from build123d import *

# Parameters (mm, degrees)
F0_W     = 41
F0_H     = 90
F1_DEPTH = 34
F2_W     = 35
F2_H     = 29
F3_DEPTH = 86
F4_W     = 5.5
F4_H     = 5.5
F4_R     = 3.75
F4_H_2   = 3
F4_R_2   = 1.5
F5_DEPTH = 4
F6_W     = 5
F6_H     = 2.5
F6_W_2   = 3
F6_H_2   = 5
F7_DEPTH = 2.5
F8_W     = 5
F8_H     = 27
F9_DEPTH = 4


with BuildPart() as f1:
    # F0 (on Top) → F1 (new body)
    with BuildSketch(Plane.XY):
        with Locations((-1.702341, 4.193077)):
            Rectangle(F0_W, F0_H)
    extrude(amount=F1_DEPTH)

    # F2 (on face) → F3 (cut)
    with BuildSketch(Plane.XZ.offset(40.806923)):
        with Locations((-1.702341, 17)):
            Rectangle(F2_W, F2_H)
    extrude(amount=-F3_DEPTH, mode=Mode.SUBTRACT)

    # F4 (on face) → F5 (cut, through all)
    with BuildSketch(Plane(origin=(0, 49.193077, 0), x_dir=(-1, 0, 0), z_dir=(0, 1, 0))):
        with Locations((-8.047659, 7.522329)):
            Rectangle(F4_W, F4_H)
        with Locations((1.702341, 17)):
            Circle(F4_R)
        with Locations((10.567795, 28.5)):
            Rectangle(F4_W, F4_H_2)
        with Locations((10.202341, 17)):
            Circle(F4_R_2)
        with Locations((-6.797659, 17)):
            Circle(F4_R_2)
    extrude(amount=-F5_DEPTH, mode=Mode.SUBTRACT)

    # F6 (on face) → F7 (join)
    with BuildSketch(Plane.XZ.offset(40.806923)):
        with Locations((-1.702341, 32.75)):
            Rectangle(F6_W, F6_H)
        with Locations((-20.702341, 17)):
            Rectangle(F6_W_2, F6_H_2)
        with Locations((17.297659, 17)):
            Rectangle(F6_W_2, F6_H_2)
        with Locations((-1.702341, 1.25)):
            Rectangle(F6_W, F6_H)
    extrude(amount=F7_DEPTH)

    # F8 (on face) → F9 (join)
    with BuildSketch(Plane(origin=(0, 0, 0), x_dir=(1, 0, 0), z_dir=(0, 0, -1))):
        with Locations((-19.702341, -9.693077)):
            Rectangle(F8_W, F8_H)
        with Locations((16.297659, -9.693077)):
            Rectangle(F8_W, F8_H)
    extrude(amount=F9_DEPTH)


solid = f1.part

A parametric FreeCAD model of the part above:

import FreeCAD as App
import Part
import Sketcher
from FreeCAD import Vector

doc = App.newDocument("Part")
params = doc.addObject("Spreadsheet::Sheet", "Params")
for row, (alias, value) in enumerate([
    ("sketch1_width", "41 mm"),
    ("sketch1_height", "90 mm"),
    ("pad1_length", "34 mm"),
    ("sketch2_width", "35 mm"),
    ("sketch2_height", "29 mm"),
    ("pocket1_length", "86 mm"),
    ("sketch3_diameter", "3 mm"),
    ("sketch3_diameter2", "7.5 mm"),
    ("sketch3_height", "3 mm"),
    ("sketch3_width", "5.5 mm"),
    ("sketch4_width", "5 mm"),
    ("sketch4_width2", "3 mm"),
    ("sketch4_height", "2.5 mm"),
    ("pad2_length", "2.5 mm"),
    ("sketch5_width", "5 mm"),
    ("sketch5_height", "27 mm"),
    ("pad3_length", "4 mm"),
], start=1):
    params.set(f"A{row}", alias)
    params.set(f"B{row}", "=" + value)
    params.setAlias(f"B{row}", alias)

body = doc.addObject("PartDesign::Body", "Body")

# Sketch on XY plane
sketch1 = body.newObject("Sketcher::SketchObject", "Sketch")
sketch1.AttachmentSupport = (doc.getObject("XY_Plane"), [""])
sketch1.MapMode = "FlatFace"
sketch1.addGeometry([
    Part.LineSegment(Vector(-22, 49, 0), Vector(-22, -41, 0)),
    Part.LineSegment(Vector(-22, -41, 0), Vector(19, -41, 0)),
    Part.LineSegment(Vector(19, -41, 0), Vector(19, 49, 0)),
    Part.LineSegment(Vector(19, 49, 0), Vector(-22, 49, 0)),
], False)
sketch1.addConstraint([
    Sketcher.Constraint("Coincident", 0, 2, 1, 1),
    Sketcher.Constraint("Coincident", 1, 2, 2, 1),
    Sketcher.Constraint("Coincident", 2, 2, 3, 1),
    Sketcher.Constraint("Coincident", 3, 2, 0, 1),
    Sketcher.Constraint("Vertical", 0),
    Sketcher.Constraint("Horizontal", 1),
    Sketcher.Constraint("Vertical", 2),
    Sketcher.Constraint("Horizontal", 3),
    Sketcher.Constraint("DistanceX", 1, 1, 1, 2, 41.0),
    Sketcher.Constraint("DistanceY", 0, 2, 0, 1, 90.0),
    Sketcher.Constraint("DistanceX", 0, 2, -1, 1, 22.202341),
    Sketcher.Constraint("DistanceY", 0, 2, -1, 1, 40.806923),
])
sketch1.setExpression("Constraints[8]", "Params.sketch1_width")
sketch1.setExpression("Constraints[9]", "Params.sketch1_height")
pad1 = body.newObject("PartDesign::Pad", "Pad")
pad1.Profile = sketch1
pad1.setExpression("Length", "Params.pad1_length")

# Sketch on XZ plane
sketch2 = body.newObject("Sketcher::SketchObject", "Sketch001")
sketch2.AttachmentSupport = (doc.getObject("XZ_Plane"), [""])
sketch2.MapMode = "FlatFace"
sketch2.AttachmentOffset = App.Placement(Vector(0, 0, 40.806923), App.Rotation())
sketch2.addGeometry([
    Part.LineSegment(Vector(-19, 32, 0), Vector(-19, 2, 0)),
    Part.LineSegment(Vector(-19, 2, 0), Vector(16, 2, 0)),
    Part.LineSegment(Vector(16, 2, 0), Vector(16, 32, 0)),
    Part.LineSegment(Vector(16, 32, 0), Vector(-19, 32, 0)),
], False)
sketch2.addConstraint([
    Sketcher.Constraint("Coincident", 0, 2, 1, 1),
    Sketcher.Constraint("Coincident", 1, 2, 2, 1),
    Sketcher.Constraint("Coincident", 2, 2, 3, 1),
    Sketcher.Constraint("Coincident", 3, 2, 0, 1),
    Sketcher.Constraint("Vertical", 0),
    Sketcher.Constraint("Horizontal", 1),
    Sketcher.Constraint("Vertical", 2),
    Sketcher.Constraint("Horizontal", 3),
    Sketcher.Constraint("DistanceX", 1, 1, 1, 2, 35.0),
    Sketcher.Constraint("DistanceY", 0, 2, 0, 1, 29.0),
    Sketcher.Constraint("DistanceY", -1, 1, 0, 2, 2.5),
    Sketcher.Constraint("DistanceX", 0, 2, -1, 1, 19.202341),
])
sketch2.setExpression("Constraints[8]", "Params.sketch2_width")
sketch2.setExpression("Constraints[9]", "Params.sketch2_height")
pocket1 = body.newObject("PartDesign::Pocket", "Pocket")
pocket1.Profile = sketch2
pocket1.setExpression("Length", "Params.pocket1_length")

# Sketch on XZ plane
sketch3 = body.newObject("Sketcher::SketchObject", "Sketch002")
sketch3.AttachmentSupport = (doc.getObject("XZ_Plane"), [""])
sketch3.MapMode = "FlatFace"
sketch3.AttachmentOffset = App.Placement(Vector(0, 0, -49.193077), App.Rotation())
sketch3.addGeometry([
    Part.LineSegment(Vector(10.8, 10.3, 0), Vector(10.8, 4.8, 0)),  # 0
    Part.LineSegment(Vector(10.8, 4.8, 0), Vector(5.3, 4.8, 0)),  # 1
    Part.LineSegment(Vector(5.3, 4.8, 0), Vector(5.3, 10.3, 0)),  # 2
    Part.LineSegment(Vector(5.3, 10.3, 0), Vector(10.8, 10.3, 0)),  # 3
    Part.Circle(Vector(-1.7, 17, 0), Vector(0, 0, 1), 3.8),  # 4
    Part.LineSegment(Vector(-7.8, 30, 0), Vector(-7.8, 27, 0)),  # 5
    Part.LineSegment(Vector(-7.8, 27, 0), Vector(-13.3, 27, 0)),  # 6
    Part.LineSegment(Vector(-13.3, 27, 0), Vector(-13.3, 30, 0)),  # 7
    Part.LineSegment(Vector(-13.3, 30, 0), Vector(-7.8, 30, 0)),  # 8
    Part.Circle(Vector(-10.2, 17, 0), Vector(0, 0, 1), 1.5),  # 9
    Part.Circle(Vector(6.8, 17, 0), Vector(0, 0, 1), 1.5),  # 10
], False)
sketch3.addConstraint([
    Sketcher.Constraint("Coincident", 0, 2, 1, 1),
    Sketcher.Constraint("Coincident", 1, 2, 2, 1),
    Sketcher.Constraint("Coincident", 2, 2, 3, 1),
    Sketcher.Constraint("Coincident", 3, 2, 0, 1),
    Sketcher.Constraint("Coincident", 5, 2, 6, 1),
    Sketcher.Constraint("Coincident", 6, 2, 7, 1),
    Sketcher.Constraint("Coincident", 7, 2, 8, 1),
    Sketcher.Constraint("Coincident", 8, 2, 5, 1),
    Sketcher.Constraint("Vertical", 0),
    Sketcher.Constraint("Horizontal", 1),
    Sketcher.Constraint("Vertical", 2),
    Sketcher.Constraint("Horizontal", 3),
    Sketcher.Constraint("Vertical", 5),
    Sketcher.Constraint("Horizontal", 6),
    Sketcher.Constraint("Vertical", 7),
    Sketcher.Constraint("Horizontal", 8),
    Sketcher.Constraint("Equal", 9, 10),
    Sketcher.Constraint("Horizontal", 4, 3, 9, 3),
    Sketcher.Constraint("Horizontal", 9, 3, 10, 3),
    Sketcher.Constraint("Equal", 3, 6),
    Sketcher.Constraint("Equal", 8, 0),
    Sketcher.Constraint("Diameter", 9, 3.0),
    Sketcher.Constraint("Diameter", 4, 7.5),
    Sketcher.Constraint("DistanceY", 5, 2, 5, 1, 3.0),
    Sketcher.Constraint("DistanceX", 1, 2, 1, 1, 5.5),
    Sketcher.Constraint("DistanceY", -1, 1, 4, 3, 17.0),
    Sketcher.Constraint("DistanceY", -1, 1, 5, 2, 27.0),
    Sketcher.Constraint("DistanceX", 9, 3, 10, 3, 17.0),
    Sketcher.Constraint("DistanceX", 10, 3, 0, 2, 4.0),
    Sketcher.Constraint("DistanceX", 4, 3, 1, 2, 7.0),
    Sketcher.Constraint("DistanceX", 4, 3, -1, 1, 1.702341),
    Sketcher.Constraint("DistanceY", -1, 1, 0, 2, 4.772329),
    Sketcher.Constraint("DistanceX", 5, 2, -1, 1, 7.817795),
])
sketch3.setExpression("Constraints[21]", "Params.sketch3_diameter")
sketch3.setExpression("Constraints[22]", "Params.sketch3_diameter2")
sketch3.setExpression("Constraints[23]", "Params.sketch3_height")
sketch3.setExpression("Constraints[24]", "Params.sketch3_width")
pocket2 = body.newObject("PartDesign::Pocket", "Pocket001")
pocket2.Profile = sketch3
pocket2.Type = "ThroughAll"
pocket2.Reversed = True

# Sketch on XZ plane
sketch4 = body.newObject("Sketcher::SketchObject", "Sketch003")
sketch4.AttachmentSupport = (doc.getObject("XZ_Plane"), [""])
sketch4.MapMode = "FlatFace"
sketch4.AttachmentOffset = App.Placement(Vector(0, 0, 40.806923), App.Rotation())
sketch4.addGeometry([
    Part.LineSegment(Vector(-4.2, 34, 0), Vector(-4.2, 31.5, 0)),  # 0
    Part.LineSegment(Vector(-4.2, 31.5, 0), Vector(0.8, 31.5, 0)),  # 1
    Part.LineSegment(Vector(0.8, 31.5, 0), Vector(0.8, 34, 0)),  # 2
    Part.LineSegment(Vector(0.8, 34, 0), Vector(-4.2, 34, 0)),  # 3
    Part.LineSegment(Vector(-22.2, 19.5, 0), Vector(-22.2, 14.5, 0)),  # 4
    Part.LineSegment(Vector(-22.2, 14.5, 0), Vector(-19.2, 14.5, 0)),  # 5
    Part.LineSegment(Vector(-19.2, 14.5, 0), Vector(-19.2, 19.5, 0)),  # 6
    Part.LineSegment(Vector(-19.2, 19.5, 0), Vector(-22.2, 19.5, 0)),  # 7
    Part.LineSegment(Vector(15.8, 19.5, 0), Vector(15.8, 14.5, 0)),  # 8
    Part.LineSegment(Vector(15.8, 14.5, 0), Vector(18.8, 14.5, 0)),  # 9
    Part.LineSegment(Vector(18.8, 14.5, 0), Vector(18.8, 19.5, 0)),  # 10
    Part.LineSegment(Vector(18.8, 19.5, 0), Vector(15.8, 19.5, 0)),  # 11
    Part.LineSegment(Vector(-4.2, 2.5, 0), Vector(-4.2, 0, 0)),  # 12
    Part.LineSegment(Vector(-4.2, 0, 0), Vector(0.8, 0, 0)),  # 13
    Part.LineSegment(Vector(0.8, 0, 0), Vector(0.8, 2.5, 0)),  # 14
    Part.LineSegment(Vector(0.8, 2.5, 0), Vector(-4.2, 2.5, 0)),  # 15
], False)
sketch4.addConstraint([
    Sketcher.Constraint("Coincident", 0, 2, 1, 1),
    Sketcher.Constraint("Coincident", 1, 2, 2, 1),
    Sketcher.Constraint("Coincident", 2, 2, 3, 1),
    Sketcher.Constraint("Coincident", 3, 2, 0, 1),
    Sketcher.Constraint("Coincident", 4, 2, 5, 1),
    Sketcher.Constraint("Coincident", 5, 2, 6, 1),
    Sketcher.Constraint("Coincident", 6, 2, 7, 1),
    Sketcher.Constraint("Coincident", 7, 2, 4, 1),
    Sketcher.Constraint("Coincident", 8, 2, 9, 1),
    Sketcher.Constraint("Coincident", 9, 2, 10, 1),
    Sketcher.Constraint("Coincident", 10, 2, 11, 1),
    Sketcher.Constraint("Coincident", 11, 2, 8, 1),
    Sketcher.Constraint("Coincident", 12, 2, 13, 1),
    Sketcher.Constraint("Coincident", 13, 2, 14, 1),
    Sketcher.Constraint("Coincident", 14, 2, 15, 1),
    Sketcher.Constraint("Coincident", 15, 2, 12, 1),
    Sketcher.Constraint("Vertical", 0),
    Sketcher.Constraint("Horizontal", 1),
    Sketcher.Constraint("Vertical", 2),
    Sketcher.Constraint("Horizontal", 3),
    Sketcher.Constraint("Vertical", 4),
    Sketcher.Constraint("Horizontal", 5),
    Sketcher.Constraint("Vertical", 6),
    Sketcher.Constraint("Horizontal", 7),
    Sketcher.Constraint("Vertical", 8),
    Sketcher.Constraint("Horizontal", 9),
    Sketcher.Constraint("Vertical", 10),
    Sketcher.Constraint("Horizontal", 11),
    Sketcher.Constraint("Vertical", 12),
    Sketcher.Constraint("Horizontal", 13),
    Sketcher.Constraint("Vertical", 14),
    Sketcher.Constraint("Horizontal", 15),
    Sketcher.Constraint("PointOnObject", 12, 2, -1),
    Sketcher.Constraint("Horizontal", 5, 2, 8, 2),
    Sketcher.Constraint("Horizontal", 7, 2, 10, 2),
    Sketcher.Constraint("Vertical", 3, 2, 12, 2),
    Sketcher.Constraint("Vertical", 2, 2, 13, 2),
    Sketcher.Constraint("Equal", 7, 9),
    Sketcher.Constraint("Equal", 15, 4),
    Sketcher.Constraint("Equal", 2, 12),
    Sketcher.Constraint("DistanceX", 1, 1, 1, 2, 5.0),
    Sketcher.Constraint("DistanceX", 5, 1, 5, 2, 3.0),
    Sketcher.Constraint("DistanceY", 0, 2, 0, 1, 2.5),
    Sketcher.Constraint("DistanceY", -1, 1, 2, 2, 34.0),
    Sketcher.Constraint("DistanceX", 4, 2, 0, 2, 18.0),
    Sketcher.Constraint("DistanceY", 4, 2, 0, 2, 17.0),
    Sketcher.Constraint("DistanceX", 1, 2, 8, 2, 15.0),
    Sketcher.Constraint("DistanceX", 0, 2, -1, 1, 4.202341),
])
sketch4.setExpression("Constraints[40]", "Params.sketch4_width")
sketch4.setExpression("Constraints[41]", "Params.sketch4_width2")
sketch4.setExpression("Constraints[42]", "Params.sketch4_height")
pad2 = body.newObject("PartDesign::Pad", "Pad001")
pad2.Profile = sketch4
pad2.setExpression("Length", "Params.pad2_length")

# Sketch on XY plane
sketch5 = body.newObject("Sketcher::SketchObject", "Sketch004")
sketch5.AttachmentSupport = (doc.getObject("XY_Plane"), [""])
sketch5.MapMode = "FlatFace"
sketch5.addGeometry([
    Part.LineSegment(Vector(-22, -4, 0), Vector(-22, 23, 0)),  # 0
    Part.LineSegment(Vector(-22, 23, 0), Vector(-17, 23, 0)),  # 1
    Part.LineSegment(Vector(-17, 23, 0), Vector(-17, -4, 0)),  # 2
    Part.LineSegment(Vector(-17, -4, 0), Vector(-22, -4, 0)),  # 3
    Part.LineSegment(Vector(14, -4, 0), Vector(14, 23, 0)),  # 4
    Part.LineSegment(Vector(14, 23, 0), Vector(19, 23, 0)),  # 5
    Part.LineSegment(Vector(19, 23, 0), Vector(19, -4, 0)),  # 6
    Part.LineSegment(Vector(19, -4, 0), Vector(14, -4, 0)),  # 7
], False)
sketch5.addConstraint([
    Sketcher.Constraint("Coincident", 0, 2, 1, 1),
    Sketcher.Constraint("Coincident", 1, 2, 2, 1),
    Sketcher.Constraint("Coincident", 2, 2, 3, 1),
    Sketcher.Constraint("Coincident", 3, 2, 0, 1),
    Sketcher.Constraint("Coincident", 4, 2, 5, 1),
    Sketcher.Constraint("Coincident", 5, 2, 6, 1),
    Sketcher.Constraint("Coincident", 6, 2, 7, 1),
    Sketcher.Constraint("Coincident", 7, 2, 4, 1),
    Sketcher.Constraint("Vertical", 0),
    Sketcher.Constraint("Horizontal", 1),
    Sketcher.Constraint("Vertical", 2),
    Sketcher.Constraint("Horizontal", 3),
    Sketcher.Constraint("Vertical", 4),
    Sketcher.Constraint("Horizontal", 5),
    Sketcher.Constraint("Vertical", 6),
    Sketcher.Constraint("Horizontal", 7),
    Sketcher.Constraint("Horizontal", 1, 2, 4, 2),
    Sketcher.Constraint("Horizontal", 3, 2, 6, 2),
    Sketcher.Constraint("Equal", 3, 5),
    Sketcher.Constraint("DistanceX", 1, 1, 1, 2, 5.0),
    Sketcher.Constraint("DistanceY", 0, 1, 0, 2, 27.0),
    Sketcher.Constraint("DistanceX", 1, 2, 4, 2, 31.0),
    Sketcher.Constraint("DistanceX", 0, 2, -1, 1, 22.202341),
    Sketcher.Constraint("DistanceY", -1, 1, 0, 2, 23.193077),
])
sketch5.setExpression("Constraints[19]", "Params.sketch5_width")
sketch5.setExpression("Constraints[20]", "Params.sketch5_height")
pad3 = body.newObject("PartDesign::Pad", "Pad002")
pad3.Profile = sketch5
pad3.setExpression("Length", "Params.pad3_length")
pad3.Reversed = True

doc.recompute()
